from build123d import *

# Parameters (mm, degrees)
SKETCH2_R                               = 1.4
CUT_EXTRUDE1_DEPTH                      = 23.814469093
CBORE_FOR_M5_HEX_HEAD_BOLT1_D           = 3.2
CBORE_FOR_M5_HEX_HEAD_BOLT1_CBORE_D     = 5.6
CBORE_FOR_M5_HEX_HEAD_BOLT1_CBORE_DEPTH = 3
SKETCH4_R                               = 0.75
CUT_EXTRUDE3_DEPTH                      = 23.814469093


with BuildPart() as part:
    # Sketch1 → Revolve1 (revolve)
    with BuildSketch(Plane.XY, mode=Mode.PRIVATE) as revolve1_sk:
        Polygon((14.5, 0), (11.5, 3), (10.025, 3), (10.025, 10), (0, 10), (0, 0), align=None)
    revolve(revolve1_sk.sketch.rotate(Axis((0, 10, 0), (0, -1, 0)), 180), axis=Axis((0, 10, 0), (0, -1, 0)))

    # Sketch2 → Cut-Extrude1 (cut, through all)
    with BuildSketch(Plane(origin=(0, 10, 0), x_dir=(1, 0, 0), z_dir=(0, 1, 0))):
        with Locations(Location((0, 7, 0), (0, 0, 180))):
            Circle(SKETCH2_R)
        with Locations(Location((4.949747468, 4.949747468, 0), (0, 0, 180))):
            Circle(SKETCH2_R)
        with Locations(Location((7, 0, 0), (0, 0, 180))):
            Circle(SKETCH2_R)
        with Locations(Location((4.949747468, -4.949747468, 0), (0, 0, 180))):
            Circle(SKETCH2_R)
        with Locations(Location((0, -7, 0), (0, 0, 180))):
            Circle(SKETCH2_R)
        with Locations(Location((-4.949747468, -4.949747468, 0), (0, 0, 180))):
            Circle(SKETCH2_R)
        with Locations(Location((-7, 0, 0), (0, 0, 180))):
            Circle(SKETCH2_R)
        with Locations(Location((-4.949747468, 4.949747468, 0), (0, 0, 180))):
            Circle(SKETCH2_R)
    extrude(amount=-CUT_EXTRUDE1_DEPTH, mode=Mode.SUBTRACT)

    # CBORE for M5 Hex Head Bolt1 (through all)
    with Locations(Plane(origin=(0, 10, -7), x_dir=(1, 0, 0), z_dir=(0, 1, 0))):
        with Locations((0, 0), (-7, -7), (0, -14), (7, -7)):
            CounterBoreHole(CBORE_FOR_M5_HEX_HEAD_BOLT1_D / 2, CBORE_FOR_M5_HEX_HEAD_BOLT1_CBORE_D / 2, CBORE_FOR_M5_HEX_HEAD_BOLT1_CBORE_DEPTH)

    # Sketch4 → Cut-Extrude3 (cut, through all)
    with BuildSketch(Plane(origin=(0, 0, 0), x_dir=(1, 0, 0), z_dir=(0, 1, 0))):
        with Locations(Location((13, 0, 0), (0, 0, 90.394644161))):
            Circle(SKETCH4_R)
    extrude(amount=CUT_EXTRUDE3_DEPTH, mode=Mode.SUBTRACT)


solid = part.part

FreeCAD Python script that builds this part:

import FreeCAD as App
import Part
import Sketcher

V = App.Vector
Q = App.Units.Quantity


def add_polygon(sketch, points):
    """Adds a closed chain of lines whose ends are joined by coincident constraints."""
    first, n = sketch.GeometryCount, len(points)
    for a, b in zip(points, points[1:] + points[:1]):
        sketch.addGeometry(Part.LineSegment(App.Vector(*a, 0), App.Vector(*b, 0)), False)
    for i in range(n):
        sketch.addConstraint(Sketcher.Constraint("Coincident", first + i, 2, first + (i + 1) % n, 1))

doc = App.newDocument("Part")
body = doc.addObject("PartDesign::Body", "Body")

sketch1 = body.newObject("Sketcher::SketchObject", "Sketch")
sketch1.AttachmentSupport = (doc.getObject("XY_Plane"), [""])
sketch1.MapMode = "FlatFace"
add_polygon(sketch1, [(14.5, 0), (11.5, 3), (10, 3), (10, 10), (0, 10), (0, 0)])
sketch1.addConstraint([
    Sketcher.Constraint("Horizontal", 1),
    Sketcher.Constraint("Vertical", 2),
    Sketcher.Constraint("Horizontal", 3),
    Sketcher.Constraint("Vertical", 4),
    Sketcher.Constraint("Horizontal", 5),
    Sketcher.Constraint("Coincident", 4, 2, -1, 1),
    Sketcher.Constraint("DistanceY", 2, 1, 2, 2, 7.0),
    Sketcher.Constraint("DistanceY", 4, 2, 4, 1, 10.0),
    Sketcher.Constraint("Angle", 0, Q("135 deg")),
    Sketcher.Constraint("DistanceX", 5, 1, 5, 2, 14.5),
    Sketcher.Constraint("DistanceX", 1, 2, 1, 1, 1.475),
])
revolution = body.newObject("PartDesign::Revolution", "Revolution")
revolution.Profile = sketch1
revolution.ReferenceAxis = (sketch1, ["V_Axis"])
revolution.Angle = 360

sketch2 = body.newObject("Sketcher::SketchObject", "Sketch001")
sketch2.AttachmentSupport = (doc.getObject("XZ_Plane"), [""])
sketch2.MapMode = "FlatFace"
sketch2.AttachmentOffset = App.Placement(V(0, 0, -10), App.Rotation())
sketch2.addGeometry([
    Part.Circle(V(0, -7, 0), V(0, 0, 1), 1.4),
    Part.Circle(V(4.9, -4.9, 0), V(0, 0, 1), 1.4),
    Part.Circle(V(7, 0, 0), V(0, 0, 1), 1.4),
    Part.Circle(V(4.9, 4.9, 0), V(0, 0, 1), 1.4),
    Part.Circle(V(0, 7, 0), V(0, 0, 1), 1.4),
    Part.Circle(V(-4.9, 4.9, 0), V(0, 0, 1), 1.4),
    Part.Circle(V(-7, 0, 0), V(0, 0, 1), 1.4),
    Part.Circle(V(-4.9, -4.9, 0), V(0, 0, 1), 1.4),
], False)
sketch2.addConstraint([
    Sketcher.Constraint("Equal", 0, 1),
    Sketcher.Constraint("Equal", 1, 2),
    Sketcher.Constraint("Equal", 2, 3),
    Sketcher.Constraint("Equal", 3, 4),
    Sketcher.Constraint("Equal", 4, 5),
    Sketcher.Constraint("Equal", 5, 6),
    Sketcher.Constraint("Equal", 6, 7),
    Sketcher.Constraint("Symmetric", 0, 3, 4, 3, -1, 1),
    Sketcher.Constraint("Symmetric", 1, 3, 5, 3, -1, 1),
    Sketcher.Constraint("Symmetric", 2, 3, 6, 3, -1, 1),
    Sketcher.Constraint("Symmetric", 3, 3, 7, 3, -1, 1),
    Sketcher.Constraint("Symmetric", 3, 3, 5, 3, -2),
    Sketcher.Constraint("PointOnObject", 0, 3, -2),
    Sketcher.Constraint("PointOnObject", 2, 3, -1),
    Sketcher.Constraint("Diameter", 0, 2.8),
    Sketcher.Constraint("DistanceY", 0, 3, -1, 1, 7.0),
    Sketcher.Constraint("DistanceX", -1, 1, 2, 3, 7.0),
    Sketcher.Constraint("DistanceX", -1, 1, 1, 3, 4.949747),
    Sketcher.Constraint("DistanceY", 1, 3, -1, 1, 4.949747),
])
pocket1 = body.newObject("PartDesign::Pocket", "Pocket")
pocket1.Profile = sketch2
pocket1.Type = "ThroughAll"
pocket1.Reversed = True

sketch3 = body.newObject("Sketcher::SketchObject", "Sketch002")
sketch3.AttachmentSupport = (doc.getObject("XZ_Plane"), [""])
sketch3.MapMode = "FlatFace"
sketch3.AttachmentOffset = App.Placement(V(0, 0, -10), App.Rotation())
sketch3.addGeometry([
    Part.Circle(V(0, -7, 0), V(0, 0, 1), 1.6),
    Part.Circle(V(-7, 0, 0), V(0, 0, 1), 1.6),
    Part.Circle(V(0, 7, 0), V(0, 0, 1), 1.6),
    Part.Circle(V(7, 0, 0), V(0, 0, 1), 1.6),
], False)
sketch3.addConstraint([
    Sketcher.Constraint("Equal", 0, 1),
    Sketcher.Constraint("Equal", 1, 2),
    Sketcher.Constraint("Equal", 2, 3),
    Sketcher.Constraint("Symmetric", 0, 3, 2, 3, -1, 1),
    Sketcher.Constraint("Symmetric", 1, 3, 3, 3, -1, 1),
    Sketcher.Constraint("PointOnObject", 0, 3, -2),
    Sketcher.Constraint("PointOnObject", 1, 3, -1),
    Sketcher.Constraint("Diameter", 0, 3.2),
    Sketcher.Constraint("DistanceY", 0, 3, -1, 1, 7.0),
    Sketcher.Constraint("DistanceX", 1, 3, -1, 1, 7.0),
])
doc.recompute()
hole = body.newObject("PartDesign::Hole", "Hole")
hole.Profile = sketch3
hole.ThreadType = "None"
hole.Diameter = 3.2
hole.DepthType = "ThroughAll"
hole.HoleCutType = "Counterbore"
hole.HoleCutDiameter = 5.6
hole.HoleCutDepth = 3
hole.Reversed = True

sketch4 = body.newObject("Sketcher::SketchObject", "Sketch003")
sketch4.AttachmentSupport = (doc.getObject("XZ_Plane"), [""])
sketch4.MapMode = "FlatFace"
sketch4.addGeometry(Part.Circle(V(13, 0, 0), V(0, 0, 1), 0.8), False)
sketch4.addConstraint([
    Sketcher.Constraint("PointOnObject", 0, 3, -1),
    Sketcher.Constraint("Diameter", 0, 1.5),
    Sketcher.Constraint("DistanceX", -1, 1, 0, 3, 13.0),
])
pocket2 = body.newObject("PartDesign::Pocket", "Pocket001")
pocket2.Profile = sketch4
pocket2.Type = "ThroughAll"

doc.recompute()
